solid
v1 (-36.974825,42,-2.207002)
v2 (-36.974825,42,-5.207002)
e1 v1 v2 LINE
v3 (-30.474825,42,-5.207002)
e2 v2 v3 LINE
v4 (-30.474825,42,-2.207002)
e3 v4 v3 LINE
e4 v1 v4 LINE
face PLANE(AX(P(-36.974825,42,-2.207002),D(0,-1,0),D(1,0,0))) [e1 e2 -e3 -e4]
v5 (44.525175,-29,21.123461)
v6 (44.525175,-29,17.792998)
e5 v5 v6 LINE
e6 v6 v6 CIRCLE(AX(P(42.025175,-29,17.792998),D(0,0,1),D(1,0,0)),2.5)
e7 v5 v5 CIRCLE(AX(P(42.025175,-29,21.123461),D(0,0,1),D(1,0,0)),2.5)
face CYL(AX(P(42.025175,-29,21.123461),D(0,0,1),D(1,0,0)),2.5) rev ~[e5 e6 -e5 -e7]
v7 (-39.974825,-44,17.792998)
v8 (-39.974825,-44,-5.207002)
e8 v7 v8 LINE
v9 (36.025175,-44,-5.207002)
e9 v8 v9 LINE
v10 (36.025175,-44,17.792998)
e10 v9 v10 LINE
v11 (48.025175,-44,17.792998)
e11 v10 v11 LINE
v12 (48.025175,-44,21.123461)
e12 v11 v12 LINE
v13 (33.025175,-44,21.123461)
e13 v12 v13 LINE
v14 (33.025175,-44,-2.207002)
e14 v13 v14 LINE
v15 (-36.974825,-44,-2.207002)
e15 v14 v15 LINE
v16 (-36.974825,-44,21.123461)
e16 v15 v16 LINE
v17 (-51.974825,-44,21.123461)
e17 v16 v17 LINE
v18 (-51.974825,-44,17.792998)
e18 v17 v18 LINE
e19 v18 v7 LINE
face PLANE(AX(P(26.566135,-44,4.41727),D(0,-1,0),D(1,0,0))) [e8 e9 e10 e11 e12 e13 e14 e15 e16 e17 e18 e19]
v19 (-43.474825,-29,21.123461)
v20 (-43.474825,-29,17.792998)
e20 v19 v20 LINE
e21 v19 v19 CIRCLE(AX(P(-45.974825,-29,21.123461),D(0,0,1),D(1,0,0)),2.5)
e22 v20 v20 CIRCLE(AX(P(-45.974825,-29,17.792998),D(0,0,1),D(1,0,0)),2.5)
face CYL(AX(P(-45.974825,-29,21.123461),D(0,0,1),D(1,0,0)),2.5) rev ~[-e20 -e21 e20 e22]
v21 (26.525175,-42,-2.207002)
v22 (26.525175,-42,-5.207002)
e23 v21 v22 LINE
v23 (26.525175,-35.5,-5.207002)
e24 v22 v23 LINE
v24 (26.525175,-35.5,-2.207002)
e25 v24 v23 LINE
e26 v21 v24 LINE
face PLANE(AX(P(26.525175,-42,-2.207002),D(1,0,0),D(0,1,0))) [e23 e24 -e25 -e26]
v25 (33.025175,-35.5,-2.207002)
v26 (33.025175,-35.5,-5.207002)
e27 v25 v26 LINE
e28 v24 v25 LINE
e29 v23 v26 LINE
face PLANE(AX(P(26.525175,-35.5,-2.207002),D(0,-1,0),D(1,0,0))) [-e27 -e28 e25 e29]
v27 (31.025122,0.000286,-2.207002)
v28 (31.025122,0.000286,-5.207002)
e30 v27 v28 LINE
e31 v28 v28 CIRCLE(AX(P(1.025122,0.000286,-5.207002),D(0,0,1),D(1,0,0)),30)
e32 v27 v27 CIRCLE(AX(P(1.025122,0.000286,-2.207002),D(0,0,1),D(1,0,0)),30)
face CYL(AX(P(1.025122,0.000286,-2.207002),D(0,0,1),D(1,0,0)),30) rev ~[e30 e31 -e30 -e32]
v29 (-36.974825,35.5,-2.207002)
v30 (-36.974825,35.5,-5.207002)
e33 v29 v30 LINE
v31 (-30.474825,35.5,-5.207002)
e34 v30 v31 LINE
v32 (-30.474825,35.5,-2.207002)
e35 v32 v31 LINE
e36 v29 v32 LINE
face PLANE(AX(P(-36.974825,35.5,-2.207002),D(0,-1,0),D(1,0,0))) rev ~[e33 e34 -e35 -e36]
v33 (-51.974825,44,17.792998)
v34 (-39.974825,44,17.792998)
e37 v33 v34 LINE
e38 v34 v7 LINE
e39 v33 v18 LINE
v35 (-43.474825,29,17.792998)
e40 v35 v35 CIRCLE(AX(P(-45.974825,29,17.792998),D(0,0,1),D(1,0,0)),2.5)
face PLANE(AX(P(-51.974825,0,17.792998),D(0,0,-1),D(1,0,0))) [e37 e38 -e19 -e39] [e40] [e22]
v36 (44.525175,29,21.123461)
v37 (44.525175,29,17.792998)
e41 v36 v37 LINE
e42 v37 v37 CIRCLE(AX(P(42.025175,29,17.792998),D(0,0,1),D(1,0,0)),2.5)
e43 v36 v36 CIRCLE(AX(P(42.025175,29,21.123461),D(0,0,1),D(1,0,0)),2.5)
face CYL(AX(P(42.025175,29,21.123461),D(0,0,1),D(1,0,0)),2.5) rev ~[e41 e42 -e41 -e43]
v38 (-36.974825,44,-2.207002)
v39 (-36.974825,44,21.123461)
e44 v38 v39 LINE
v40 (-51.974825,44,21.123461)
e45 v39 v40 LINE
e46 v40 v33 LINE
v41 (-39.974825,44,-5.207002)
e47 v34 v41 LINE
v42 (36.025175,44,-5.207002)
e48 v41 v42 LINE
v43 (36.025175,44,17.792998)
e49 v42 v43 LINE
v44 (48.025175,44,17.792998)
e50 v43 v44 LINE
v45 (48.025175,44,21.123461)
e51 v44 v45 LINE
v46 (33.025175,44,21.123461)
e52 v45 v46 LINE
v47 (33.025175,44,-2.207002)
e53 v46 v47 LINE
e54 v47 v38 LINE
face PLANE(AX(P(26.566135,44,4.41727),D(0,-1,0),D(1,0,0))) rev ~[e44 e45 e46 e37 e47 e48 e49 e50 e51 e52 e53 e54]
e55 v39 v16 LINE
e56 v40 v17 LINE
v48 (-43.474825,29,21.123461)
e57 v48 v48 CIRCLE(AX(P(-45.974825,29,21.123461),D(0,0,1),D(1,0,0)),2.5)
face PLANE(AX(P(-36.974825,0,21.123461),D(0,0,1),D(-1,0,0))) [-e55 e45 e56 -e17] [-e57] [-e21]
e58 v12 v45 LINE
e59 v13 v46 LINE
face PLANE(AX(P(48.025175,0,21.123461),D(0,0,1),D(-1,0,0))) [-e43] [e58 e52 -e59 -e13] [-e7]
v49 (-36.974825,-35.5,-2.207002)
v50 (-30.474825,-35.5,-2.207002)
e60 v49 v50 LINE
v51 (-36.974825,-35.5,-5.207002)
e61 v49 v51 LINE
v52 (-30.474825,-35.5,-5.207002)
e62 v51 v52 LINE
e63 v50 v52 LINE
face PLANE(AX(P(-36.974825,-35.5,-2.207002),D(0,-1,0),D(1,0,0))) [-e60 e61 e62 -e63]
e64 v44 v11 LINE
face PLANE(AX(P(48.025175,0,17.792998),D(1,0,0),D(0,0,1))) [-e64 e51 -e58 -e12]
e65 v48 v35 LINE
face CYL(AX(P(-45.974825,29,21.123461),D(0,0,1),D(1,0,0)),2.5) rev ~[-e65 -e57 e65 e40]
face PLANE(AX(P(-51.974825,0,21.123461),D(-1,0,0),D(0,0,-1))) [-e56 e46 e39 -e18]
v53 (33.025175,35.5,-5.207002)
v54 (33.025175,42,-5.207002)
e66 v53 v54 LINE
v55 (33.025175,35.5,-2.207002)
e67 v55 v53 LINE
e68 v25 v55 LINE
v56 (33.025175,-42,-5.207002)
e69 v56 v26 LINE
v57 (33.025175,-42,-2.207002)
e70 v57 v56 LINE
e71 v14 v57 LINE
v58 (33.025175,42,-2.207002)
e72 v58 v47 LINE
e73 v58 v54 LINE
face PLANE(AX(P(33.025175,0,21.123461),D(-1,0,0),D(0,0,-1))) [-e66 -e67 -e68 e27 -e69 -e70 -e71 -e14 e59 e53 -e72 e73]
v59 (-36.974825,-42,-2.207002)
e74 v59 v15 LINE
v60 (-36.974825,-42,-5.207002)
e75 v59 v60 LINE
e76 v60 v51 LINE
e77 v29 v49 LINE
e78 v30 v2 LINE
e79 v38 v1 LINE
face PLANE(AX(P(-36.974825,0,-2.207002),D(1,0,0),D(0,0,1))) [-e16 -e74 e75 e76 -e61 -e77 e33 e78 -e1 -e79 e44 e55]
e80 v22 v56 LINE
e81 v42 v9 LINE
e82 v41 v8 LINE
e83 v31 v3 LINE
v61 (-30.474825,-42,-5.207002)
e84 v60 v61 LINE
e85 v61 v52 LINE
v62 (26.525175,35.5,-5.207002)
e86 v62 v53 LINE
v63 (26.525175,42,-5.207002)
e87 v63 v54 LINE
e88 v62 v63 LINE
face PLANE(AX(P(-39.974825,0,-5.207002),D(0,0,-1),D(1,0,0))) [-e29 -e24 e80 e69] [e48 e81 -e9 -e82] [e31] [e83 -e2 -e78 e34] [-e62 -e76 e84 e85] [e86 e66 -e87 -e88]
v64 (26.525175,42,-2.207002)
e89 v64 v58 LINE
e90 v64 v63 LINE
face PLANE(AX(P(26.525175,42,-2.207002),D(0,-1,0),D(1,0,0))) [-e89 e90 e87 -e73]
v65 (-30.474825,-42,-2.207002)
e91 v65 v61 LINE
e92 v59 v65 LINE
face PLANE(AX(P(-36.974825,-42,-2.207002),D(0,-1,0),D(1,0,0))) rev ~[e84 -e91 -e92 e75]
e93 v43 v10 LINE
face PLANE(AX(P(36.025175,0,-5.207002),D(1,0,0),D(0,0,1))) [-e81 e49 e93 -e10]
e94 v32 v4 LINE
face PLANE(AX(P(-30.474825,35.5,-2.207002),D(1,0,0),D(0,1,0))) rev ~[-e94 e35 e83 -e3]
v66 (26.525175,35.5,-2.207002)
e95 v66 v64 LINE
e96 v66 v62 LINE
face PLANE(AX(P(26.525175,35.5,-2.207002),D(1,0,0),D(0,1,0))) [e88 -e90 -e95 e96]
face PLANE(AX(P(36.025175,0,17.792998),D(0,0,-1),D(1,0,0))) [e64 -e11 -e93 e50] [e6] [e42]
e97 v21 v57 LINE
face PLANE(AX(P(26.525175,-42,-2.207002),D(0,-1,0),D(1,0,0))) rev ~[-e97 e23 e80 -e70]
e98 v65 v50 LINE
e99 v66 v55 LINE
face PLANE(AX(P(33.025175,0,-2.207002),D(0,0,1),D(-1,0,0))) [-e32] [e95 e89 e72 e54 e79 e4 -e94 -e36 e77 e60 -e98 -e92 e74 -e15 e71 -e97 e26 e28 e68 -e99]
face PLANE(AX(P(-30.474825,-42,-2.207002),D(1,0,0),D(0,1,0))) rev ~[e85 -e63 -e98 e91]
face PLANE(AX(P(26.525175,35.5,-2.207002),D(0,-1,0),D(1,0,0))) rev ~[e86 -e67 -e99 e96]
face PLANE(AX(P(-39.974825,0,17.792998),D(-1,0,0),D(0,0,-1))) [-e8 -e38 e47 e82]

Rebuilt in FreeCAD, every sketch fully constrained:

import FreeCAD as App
import Part
import Sketcher
from FreeCAD import Vector
Q = App.Units.Quantity

doc = App.newDocument("Part")
body = doc.addObject("PartDesign::Body", "Body")

sketch1 = body.newObject("Sketcher::SketchObject", "Sketch")
sketch1.AttachmentSupport = (doc.getObject("XZ_Plane"), [""])
sketch1.MapMode = "FlatFace"
sketch1.addGeometry(Part.LineSegment(Vector(33.025175, -2.207002, 0), Vector(-36.974825, -2.207002, 0)), False)
sketch1.addGeometry(Part.LineSegment(Vector(-36.974825, -2.207002, 0), Vector(-36.974825, 21.123461, 0)), False)
sketch1.addGeometry(Part.LineSegment(Vector(-36.974825, 21.123461, 0), Vector(-51.974825, 21.123461, 0)), False)
sketch1.addGeometry(Part.LineSegment(Vector(-51.974825, 21.123461, 0), Vector(-51.974825, 17.792998, 0)), False)
sketch1.addGeometry(Part.LineSegment(Vector(-51.974825, 17.792998, 0), Vector(-39.974825, 17.792998, 0)), False)
sketch1.addGeometry(Part.LineSegment(Vector(-39.974825, 17.792998, 0), Vector(-39.974825, -5.207002, 0)), False)
sketch1.addGeometry(Part.LineSegment(Vector(-39.974825, -5.207002, 0), Vector(36.025175, -5.207002, 0)), False)
sketch1.addGeometry(Part.LineSegment(Vector(36.025175, -5.207002, 0), Vector(36.025175, 17.792998, 0)), False)
sketch1.addGeometry(Part.LineSegment(Vector(36.025175, 17.792998, 0), Vector(48.025175, 17.792998, 0)), False)
sketch1.addGeometry(Part.LineSegment(Vector(48.025175, 17.792998, 0), Vector(48.025175, 21.123461, 0)), False)
sketch1.addGeometry(Part.LineSegment(Vector(48.025175, 21.123461, 0), Vector(33.025175, 21.123461, 0)), False)
sketch1.addGeometry(Part.LineSegment(Vector(33.025175, 21.123461, 0), Vector(33.025175, -2.207002, 0)), False)
sketch1.addConstraint(Sketcher.Constraint("Coincident", 0, 2, 1, 1))
sketch1.addConstraint(Sketcher.Constraint("Coincident", 1, 2, 2, 1))
sketch1.addConstraint(Sketcher.Constraint("Coincident", 2, 2, 3, 1))
sketch1.addConstraint(Sketcher.Constraint("Coincident", 3, 2, 4, 1))
sketch1.addConstraint(Sketcher.Constraint("Coincident", 4, 2, 5, 1))
sketch1.addConstraint(Sketcher.Constraint("Coincident", 5, 2, 6, 1))
sketch1.addConstraint(Sketcher.Constraint("Coincident", 6, 2, 7, 1))
sketch1.addConstraint(Sketcher.Constraint("Coincident", 7, 2, 8, 1))
sketch1.addConstraint(Sketcher.Constraint("Coincident", 8, 2, 9, 1))
sketch1.addConstraint(Sketcher.Constraint("Coincident", 9, 2, 10, 1))
sketch1.addConstraint(Sketcher.Constraint("Coincident", 10, 2, 11, 1))
sketch1.addConstraint(Sketcher.Constraint("Coincident", 11, 2, 0, 1))
sketch1.addConstraint(Sketcher.Constraint("Horizontal", 0))
sketch1.addConstraint(Sketcher.Constraint("Vertical", 1))
sketch1.addConstraint(Sketcher.Constraint("Horizontal", 2))
sketch1.addConstraint(Sketcher.Constraint("Vertical", 3))
sketch1.addConstraint(Sketcher.Constraint("Horizontal", 4))
sketch1.addConstraint(Sketcher.Constraint("Vertical", 5))
sketch1.addConstraint(Sketcher.Constraint("Horizontal", 6))
sketch1.addConstraint(Sketcher.Constraint("Vertical", 7))
sketch1.addConstraint(Sketcher.Constraint("Horizontal", 8))
sketch1.addConstraint(Sketcher.Constraint("Vertical", 9))
sketch1.addConstraint(Sketcher.Constraint("Horizontal", 10))
sketch1.addConstraint(Sketcher.Constraint("Vertical", 11))
sketch1.addConstraint(Sketcher.Constraint("Horizontal", 4, 2, 7, 2))
sketch1.addConstraint(Sketcher.Constraint("Horizontal", 2, 2, 9, 2))
sketch1.addConstraint(Sketcher.Constraint("Equal", 4, 8))
sketch1.addConstraint(Sketcher.Constraint("Equal", 2, 10))
sketch1.addConstraint(Sketcher.Constraint("DistanceX", 0, 2, 0, 1, Q("70 mm")))
sketch1.addConstraint(Sketcher.Constraint("DistanceX", 2, 2, 2, 1, Q("15 mm")))
sketch1.addConstraint(Sketcher.Constraint("DistanceX", 4, 1, 4, 2, Q("12 mm")))
sketch1.addConstraint(Sketcher.Constraint("DistanceY", 5, 2, 5, 1, Q("23 mm")))
sketch1.addConstraint(Sketcher.Constraint("DistanceY", 0, 2, 3, 2, Q("20 mm")))
sketch1.addConstraint(Sketcher.Constraint("DistanceY", -1, 1, 3, 2, Q("17.792998 mm")))
sketch1.addConstraint(Sketcher.Constraint("DistanceY", 1, 1, 1, 2, Q("23.330463 mm")))
sketch1.addConstraint(Sketcher.Constraint("DistanceX", 0, 2, -1, 1, Q("36.974825 mm")))
pad1 = body.newObject("PartDesign::Pad", "Pad")
pad1.Profile = sketch1
pad1.Length = 88
pad1.Midplane = True

sketch2 = body.newObject("Sketcher::SketchObject", "Sketch001")
sketch2.AttachmentSupport = (doc.getObject("XY_Plane"), [""])
sketch2.MapMode = "FlatFace"
sketch2.AttachmentOffset = App.Placement(Vector(0, 0, 21.123461), App.Rotation())
sketch2.addGeometry(Part.Circle(Vector(42.025175, -29, 0), Vector(0, 0, 1), 2.5), False)
sketch2.addGeometry(Part.Circle(Vector(42.025175, 29, 0), Vector(0, 0, 1), 2.5), False)
sketch2.addGeometry(Part.Circle(Vector(-45.974825, 29, 0), Vector(0, 0, 1), 2.5), False)
sketch2.addGeometry(Part.Circle(Vector(-45.974825, -29, 0), Vector(0, 0, 1), 2.5), False)
sketch2.addConstraint(Sketcher.Constraint("Equal", 0, 1))
sketch2.addConstraint(Sketcher.Constraint("Equal", 1, 2))
sketch2.addConstraint(Sketcher.Constraint("Equal", 2, 3))
sketch2.addConstraint(Sketcher.Constraint("Symmetric", 0, 3, 1, 3, -1))
sketch2.addConstraint(Sketcher.Constraint("Symmetric", 2, 3, 3, 3, -1))
sketch2.addConstraint(Sketcher.Constraint("Horizontal", 1, 3, 2, 3))
sketch2.addConstraint(Sketcher.Constraint("Diameter", 0, Q("5 mm")))
sketch2.addConstraint(Sketcher.Constraint("DistanceY", 0, 3, -1, 1, Q("29 mm")))
sketch2.addConstraint(Sketcher.Constraint("DistanceX", 2, 3, 1, 3, Q("88 mm")))
sketch2.addConstraint(Sketcher.Constraint("DistanceX", -1, 1, 0, 3, Q("42.025175 mm")))
pocket1 = body.newObject("PartDesign::Pocket", "Pocket")
pocket1.Profile = sketch2
pocket1.Type = "ThroughAll"

sketch3 = body.newObject("Sketcher::SketchObject", "Sketch002")
sketch3.AttachmentSupport = (doc.getObject("XY_Plane"), [""])
sketch3.MapMode = "FlatFace"
sketch3.AttachmentOffset = App.Placement(Vector(0, 0, -2.207002), App.Rotation())
sketch3.addGeometry(Part.Circle(Vector(1.025122, 0.000286, 0), Vector(0, 0, 1), 30), False)
sketch3.addConstraint(Sketcher.Constraint("Diameter", 0, Q("60 mm")))
sketch3.addConstraint(Sketcher.Constraint("DistanceX", -1, 1, 0, 3, Q("1.025122 mm")))
sketch3.addConstraint(Sketcher.Constraint("DistanceY", -1, 1, 0, 3, Q("0.000286 mm")))
pocket2 = body.newObject("PartDesign::Pocket", "Pocket001")
pocket2.Profile = sketch3
pocket2.Type = "ThroughAll"

sketch4 = body.newObject("Sketcher::SketchObject", "Sketch003")
sketch4.AttachmentSupport = (doc.getObject("XY_Plane"), [""])
sketch4.MapMode = "FlatFace"
sketch4.AttachmentOffset = App.Placement(Vector(0, 0, -2.207002), App.Rotation())
sketch4.addGeometry(Part.LineSegment(Vector(-36.974825, 42, 0), Vector(-36.974825, 35.5, 0)), False)
sketch4.addGeometry(Part.LineSegment(Vector(-36.974825, 35.5, 0), Vector(-30.474825, 35.5, 0)), False)
sketch4.addGeometry(Part.LineSegment(Vector(-30.474825, 35.5, 0), Vector(-30.474825, 42, 0)), False)
sketch4.addGeometry(Part.LineSegment(Vector(-30.474825, 42, 0), Vector(-36.974825, 42, 0)), False)
sketch4.addGeometry(Part.LineSegment(Vector(26.525175, 42, 0), Vector(26.525175, 35.5, 0)), False)
sketch4.addGeometry(Part.LineSegment(Vector(26.525175, 35.5, 0), Vector(33.025175, 35.5, 0)), False)
sketch4.addGeometry(Part.LineSegment(Vector(33.025175, 35.5, 0), Vector(33.025175, 42, 0)), False)
sketch4.addGeometry(Part.LineSegment(Vector(33.025175, 42, 0), Vector(26.525175, 42, 0)), False)
sketch4.addGeometry(Part.LineSegment(Vector(26.525175, -35.5, 0), Vector(26.525175, -42, 0)), False)
sketch4.addGeometry(Part.LineSegment(Vector(26.525175, -42, 0), Vector(33.025175, -42, 0)), False)
sketch4.addGeometry(Part.LineSegment(Vector(33.025175, -42, 0), Vector(33.025175, -35.5, 0)), False)
sketch4.addGeometry(Part.LineSegment(Vector(33.025175, -35.5, 0), Vector(26.525175, -35.5, 0)), False)
sketch4.addGeometry(Part.LineSegment(Vector(-36.974825, -35.5, 0), Vector(-36.974825, -42, 0)), False)
sketch4.addGeometry(Part.LineSegment(Vector(-36.974825, -42, 0), Vector(-30.474825, -42, 0)), False)
sketch4.addGeometry(Part.LineSegment(Vector(-30.474825, -42, 0), Vector(-30.474825, -35.5, 0)), False)
sketch4.addGeometry(Part.LineSegment(Vector(-30.474825, -35.5, 0), Vector(-36.974825, -35.5, 0)), False)
sketch4.addConstraint(Sketcher.Constraint("Coincident", 0, 2, 1, 1))
sketch4.addConstraint(Sketcher.Constraint("Coincident", 1, 2, 2, 1))
sketch4.addConstraint(Sketcher.Constraint("Coincident", 2, 2, 3, 1))
sketch4.addConstraint(Sketcher.Constraint("Coincident", 3, 2, 0, 1))
sketch4.addConstraint(Sketcher.Constraint("Coincident", 4, 2, 5, 1))
sketch4.addConstraint(Sketcher.Constraint("Coincident", 5, 2, 6, 1))
sketch4.addConstraint(Sketcher.Constraint("Coincident", 6, 2, 7, 1))
sketch4.addConstraint(Sketcher.Constraint("Coincident", 7, 2, 4, 1))
sketch4.addConstraint(Sketcher.Constraint("Coincident", 8, 2, 9, 1))
sketch4.addConstraint(Sketcher.Constraint("Coincident", 9, 2, 10, 1))
sketch4.addConstraint(Sketcher.Constraint("Coincident", 10, 2, 11, 1))
sketch4.addConstraint(Sketcher.Constraint("Coincident", 11, 2, 8, 1))
sketch4.addConstraint(Sketcher.Constraint("Coincident", 12, 2, 13, 1))
sketch4.addConstraint(Sketcher.Constraint("Coincident", 13, 2, 14, 1))
sketch4.addConstraint(Sketcher.Constraint("Coincident", 14, 2, 15, 1))
sketch4.addConstraint(Sketcher.Constraint("Coincident", 15, 2, 12, 1))
sketch4.addConstraint(Sketcher.Constraint("Vertical", 0))
sketch4.addConstraint(Sketcher.Constraint("Horizontal", 1))
sketch4.addConstraint(Sketcher.Constraint("Vertical", 2))
sketch4.addConstraint(Sketcher.Constraint("Horizontal", 3))
sketch4.addConstraint(Sketcher.Constraint("Vertical", 4))
sketch4.addConstraint(Sketcher.Constraint("Horizontal", 5))
sketch4.addConstraint(Sketcher.Constraint("Vertical", 6))
sketch4.addConstraint(Sketcher.Constraint("Horizontal", 7))
sketch4.addConstraint(Sketcher.Constraint("Vertical", 8))
sketch4.addConstraint(Sketcher.Constraint("Horizontal", 9))
sketch4.addConstraint(Sketcher.Constraint("Vertical", 10))
sketch4.addConstraint(Sketcher.Constraint("Horizontal", 11))
sketch4.addConstraint(Sketcher.Constraint("Vertical", 12))
sketch4.addConstraint(Sketcher.Constraint("Horizontal", 13))
sketch4.addConstraint(Sketcher.Constraint("Vertical", 14))
sketch4.addConstraint(Sketcher.Constraint("Horizontal", 15))
sketch4.addConstraint(Sketcher.Constraint("Symmetric", 7, 2, 8, 2, -1))
sketch4.addConstraint(Sketcher.Constraint("Symmetric", 5, 2, 10, 2, -1))
sketch4.addConstraint(Sketcher.Constraint("Symmetric", 3, 2, 12, 2, -1))
sketch4.addConstraint(Sketcher.Constraint("Symmetric", 1, 2, 14, 2, -1))
sketch4.addConstraint(Sketcher.Constraint("Horizontal", 1, 2, 4, 2))
sketch4.addConstraint(Sketcher.Constraint("Horizontal", 3, 2, 6, 2))
sketch4.addConstraint(Sketcher.Constraint("Equal", 3, 5))
sketch4.addConstraint(Sketcher.Constraint("Equal", 15, 0))
sketch4.addConstraint(Sketcher.Constraint("DistanceX", 1, 1, 1, 2, Q("6.5 mm")))
sketch4.addConstraint(Sketcher.Constraint("DistanceY", -1, 1, 2, 2, Q("42 mm")))
sketch4.addConstraint(Sketcher.Constraint("DistanceX", 1, 2, 4, 2, Q("57 mm")))
sketch4.addConstraint(Sketcher.Constraint("DistanceX", 0, 2, -1, 1, Q("36.974825 mm")))
pocket3 = body.newObject("PartDesign::Pocket", "Pocket002")
pocket3.Profile = sketch4
pocket3.Type = "ThroughAll"

doc.recompute()
